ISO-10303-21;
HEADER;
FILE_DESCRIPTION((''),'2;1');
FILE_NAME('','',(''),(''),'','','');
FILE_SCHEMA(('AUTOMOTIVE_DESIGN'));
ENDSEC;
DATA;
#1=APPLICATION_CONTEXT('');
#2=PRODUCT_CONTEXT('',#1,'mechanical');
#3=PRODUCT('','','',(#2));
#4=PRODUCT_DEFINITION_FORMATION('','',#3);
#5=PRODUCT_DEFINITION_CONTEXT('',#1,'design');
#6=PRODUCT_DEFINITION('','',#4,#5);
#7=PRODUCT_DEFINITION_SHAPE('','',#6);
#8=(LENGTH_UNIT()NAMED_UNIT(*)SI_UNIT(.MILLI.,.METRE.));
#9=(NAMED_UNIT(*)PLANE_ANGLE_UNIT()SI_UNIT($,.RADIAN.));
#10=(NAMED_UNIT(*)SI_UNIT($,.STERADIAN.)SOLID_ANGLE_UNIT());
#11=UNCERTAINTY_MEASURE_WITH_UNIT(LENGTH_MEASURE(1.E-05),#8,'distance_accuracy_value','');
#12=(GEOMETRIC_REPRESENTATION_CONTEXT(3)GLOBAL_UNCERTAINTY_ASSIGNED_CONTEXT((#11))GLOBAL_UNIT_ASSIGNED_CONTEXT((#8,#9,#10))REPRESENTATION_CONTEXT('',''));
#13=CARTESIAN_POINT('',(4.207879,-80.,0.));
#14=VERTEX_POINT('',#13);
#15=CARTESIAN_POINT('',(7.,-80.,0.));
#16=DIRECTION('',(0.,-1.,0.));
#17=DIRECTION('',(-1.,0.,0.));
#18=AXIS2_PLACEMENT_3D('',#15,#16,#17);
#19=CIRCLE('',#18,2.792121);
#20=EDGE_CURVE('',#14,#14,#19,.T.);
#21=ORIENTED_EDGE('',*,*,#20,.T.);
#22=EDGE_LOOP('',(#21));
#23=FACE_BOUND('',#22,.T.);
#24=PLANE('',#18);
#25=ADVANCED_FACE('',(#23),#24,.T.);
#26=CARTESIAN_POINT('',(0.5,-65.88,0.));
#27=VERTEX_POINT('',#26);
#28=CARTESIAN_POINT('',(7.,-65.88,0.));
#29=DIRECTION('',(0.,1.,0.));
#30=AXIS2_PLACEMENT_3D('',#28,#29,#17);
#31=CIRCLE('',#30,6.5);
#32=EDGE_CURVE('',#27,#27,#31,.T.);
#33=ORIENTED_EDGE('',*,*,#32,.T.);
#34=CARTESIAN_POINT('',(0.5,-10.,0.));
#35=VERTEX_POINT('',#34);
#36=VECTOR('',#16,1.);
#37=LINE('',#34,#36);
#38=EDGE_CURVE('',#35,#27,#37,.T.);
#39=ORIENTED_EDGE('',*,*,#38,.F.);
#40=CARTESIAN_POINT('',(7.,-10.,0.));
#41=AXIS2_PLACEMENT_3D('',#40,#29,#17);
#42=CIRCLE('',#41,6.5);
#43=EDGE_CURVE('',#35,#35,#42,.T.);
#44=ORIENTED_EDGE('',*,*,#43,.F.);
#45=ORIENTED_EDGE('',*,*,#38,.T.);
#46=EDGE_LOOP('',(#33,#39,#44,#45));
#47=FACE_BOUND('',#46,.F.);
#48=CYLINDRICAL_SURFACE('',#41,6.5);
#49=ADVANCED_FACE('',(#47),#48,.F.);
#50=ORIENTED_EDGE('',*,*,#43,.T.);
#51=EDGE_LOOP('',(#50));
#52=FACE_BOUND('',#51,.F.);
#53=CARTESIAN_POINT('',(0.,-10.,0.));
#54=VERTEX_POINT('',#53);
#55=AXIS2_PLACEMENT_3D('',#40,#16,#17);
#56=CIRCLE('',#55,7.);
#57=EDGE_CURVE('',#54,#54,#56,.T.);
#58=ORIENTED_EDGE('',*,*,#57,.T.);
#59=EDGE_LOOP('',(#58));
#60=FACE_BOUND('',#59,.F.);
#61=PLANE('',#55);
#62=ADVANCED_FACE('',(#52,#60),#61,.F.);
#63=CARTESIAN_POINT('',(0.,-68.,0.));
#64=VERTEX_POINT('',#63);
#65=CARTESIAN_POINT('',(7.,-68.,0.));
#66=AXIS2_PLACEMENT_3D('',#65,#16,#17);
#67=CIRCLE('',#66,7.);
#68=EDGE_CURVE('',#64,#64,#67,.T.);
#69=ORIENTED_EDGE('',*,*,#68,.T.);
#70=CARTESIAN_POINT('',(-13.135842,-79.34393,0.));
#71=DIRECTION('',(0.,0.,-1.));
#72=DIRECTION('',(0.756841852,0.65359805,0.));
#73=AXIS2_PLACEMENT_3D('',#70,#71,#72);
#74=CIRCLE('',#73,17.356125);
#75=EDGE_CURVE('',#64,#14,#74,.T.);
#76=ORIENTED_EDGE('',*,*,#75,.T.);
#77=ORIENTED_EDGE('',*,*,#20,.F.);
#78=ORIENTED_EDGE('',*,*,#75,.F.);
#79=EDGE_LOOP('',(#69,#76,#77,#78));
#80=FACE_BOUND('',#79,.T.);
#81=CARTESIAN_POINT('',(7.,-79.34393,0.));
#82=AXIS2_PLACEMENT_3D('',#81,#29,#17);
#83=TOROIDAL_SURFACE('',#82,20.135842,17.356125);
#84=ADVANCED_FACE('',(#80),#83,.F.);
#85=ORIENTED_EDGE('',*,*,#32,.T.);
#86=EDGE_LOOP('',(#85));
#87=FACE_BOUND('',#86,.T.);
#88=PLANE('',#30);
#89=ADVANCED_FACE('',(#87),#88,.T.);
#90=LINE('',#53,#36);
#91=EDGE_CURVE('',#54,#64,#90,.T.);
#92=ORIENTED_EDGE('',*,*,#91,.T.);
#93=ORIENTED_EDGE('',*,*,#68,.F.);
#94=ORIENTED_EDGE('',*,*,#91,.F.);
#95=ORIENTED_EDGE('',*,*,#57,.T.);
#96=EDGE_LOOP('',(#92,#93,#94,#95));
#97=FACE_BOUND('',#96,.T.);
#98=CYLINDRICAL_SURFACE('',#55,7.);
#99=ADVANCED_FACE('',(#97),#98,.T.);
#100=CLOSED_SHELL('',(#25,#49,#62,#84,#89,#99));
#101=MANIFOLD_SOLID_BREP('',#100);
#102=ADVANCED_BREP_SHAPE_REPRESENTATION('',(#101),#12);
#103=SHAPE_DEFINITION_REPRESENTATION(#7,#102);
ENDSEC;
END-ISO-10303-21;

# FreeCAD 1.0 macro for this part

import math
import FreeCAD as App
import Part
import Sketcher

V = App.Vector
Q = App.Units.Quantity

doc = App.newDocument("Part")
body = doc.addObject("PartDesign::Body", "Body")

# Sketch on XY plane
sketch1 = doc.addObject("Sketcher::SketchObject", "Sketch")
body.addObject(sketch1)
sketch1.AttachmentSupport = (doc.XY_Plane, [""])
sketch1.MapMode = "FlatFace"
sketch1.addGeometry([
    Part.LineSegment(V(0, -10, 0), V(0, -68, 0)),  # 0
    Part.ArcOfCircle(Part.Circle(V(-13.1, -79.3, 0), V(0, 0, 1), 17.4), math.radians(-2), math.radians(41)),  # 1
    Part.LineSegment(V(4.2, -80, 0), V(7, -80, 0)),  # 2
    Part.LineSegment(V(7, -80, 0), V(7, -10, 0)),  # 3
    Part.LineSegment(V(7, -10, 0), V(0, -10, 0)),  # 4
], False)
sketch1.addGeometry(Part.LineSegment(V(7, -10, 0), V(7, -80, 0)), True)  # axis
sketch1.addConstraint([
    Sketcher.Constraint("Coincident", 0, 2, 1, 2),
    Sketcher.Constraint("Coincident", 1, 1, 2, 1),
    Sketcher.Constraint("Coincident", 2, 2, 3, 1),
    Sketcher.Constraint("Coincident", 3, 2, 4, 1),
    Sketcher.Constraint("Coincident", 4, 2, 0, 1),
    Sketcher.Constraint("Vertical", 0),
    Sketcher.Constraint("Horizontal", 2),
    Sketcher.Constraint("Vertical", 3),
    Sketcher.Constraint("Horizontal", 4),
    Sketcher.Constraint("Vertical", 5),
    Sketcher.Constraint("Coincident", 5, 1, 3, 2),
    Sketcher.Constraint("PointOnObject", 0, 2, -2),
    Sketcher.Constraint("Horizontal", 1, 1, 5, 2),
    Sketcher.Constraint("DistanceX", 4, 2, 4, 1, Q("7 mm")),
    Sketcher.Constraint("DistanceY", 0, 2, 0, 1, Q("58 mm")),
    Sketcher.Constraint("DistanceY", 3, 1, 3, 2, Q("70 mm")),
    Sketcher.Constraint("DistanceY", 0, 2, -1, 1, Q("68 mm")),
    Sketcher.Constraint("Radius", 1, Q("17.356125 mm")),
    Sketcher.Constraint("DistanceX", 2, 1, 2, 2, Q("2.792121 mm")),
])
revolution = doc.addObject("PartDesign::Revolution", "Revolution")
body.addObject(revolution)
revolution.Profile = sketch1
revolution.ReferenceAxis = (sketch1, ["Axis0"])
revolution.Angle = 360

# Sketch on XZ plane
sketch2 = doc.addObject("Sketcher::SketchObject", "Sketch001")
body.addObject(sketch2)
sketch2.AttachmentSupport = (doc.XZ_Plane, [""])
sketch2.MapMode = "FlatFace"
sketch2.AttachmentOffset = App.Placement(V(0, 0, 10), App.Rotation())
sketch2.addGeometry(Part.Circle(V(7, 0, 0), V(0, 0, 1), 6), False)
sketch2.addConstraint([
    Sketcher.Constraint("PointOnObject", 0, 3, -1),
    Sketcher.Constraint("Diameter", 0, Q("13 mm")),
    Sketcher.Constraint("DistanceX", -1, 1, 0, 3, Q("7 mm")),
])
pocket1 = doc.addObject("PartDesign::Pocket", "Pocket")
body.addObject(pocket1)
pocket1.Profile = sketch2
pocket1.Length = 55.88
pocket1.Reversed = True

doc.recompute()
